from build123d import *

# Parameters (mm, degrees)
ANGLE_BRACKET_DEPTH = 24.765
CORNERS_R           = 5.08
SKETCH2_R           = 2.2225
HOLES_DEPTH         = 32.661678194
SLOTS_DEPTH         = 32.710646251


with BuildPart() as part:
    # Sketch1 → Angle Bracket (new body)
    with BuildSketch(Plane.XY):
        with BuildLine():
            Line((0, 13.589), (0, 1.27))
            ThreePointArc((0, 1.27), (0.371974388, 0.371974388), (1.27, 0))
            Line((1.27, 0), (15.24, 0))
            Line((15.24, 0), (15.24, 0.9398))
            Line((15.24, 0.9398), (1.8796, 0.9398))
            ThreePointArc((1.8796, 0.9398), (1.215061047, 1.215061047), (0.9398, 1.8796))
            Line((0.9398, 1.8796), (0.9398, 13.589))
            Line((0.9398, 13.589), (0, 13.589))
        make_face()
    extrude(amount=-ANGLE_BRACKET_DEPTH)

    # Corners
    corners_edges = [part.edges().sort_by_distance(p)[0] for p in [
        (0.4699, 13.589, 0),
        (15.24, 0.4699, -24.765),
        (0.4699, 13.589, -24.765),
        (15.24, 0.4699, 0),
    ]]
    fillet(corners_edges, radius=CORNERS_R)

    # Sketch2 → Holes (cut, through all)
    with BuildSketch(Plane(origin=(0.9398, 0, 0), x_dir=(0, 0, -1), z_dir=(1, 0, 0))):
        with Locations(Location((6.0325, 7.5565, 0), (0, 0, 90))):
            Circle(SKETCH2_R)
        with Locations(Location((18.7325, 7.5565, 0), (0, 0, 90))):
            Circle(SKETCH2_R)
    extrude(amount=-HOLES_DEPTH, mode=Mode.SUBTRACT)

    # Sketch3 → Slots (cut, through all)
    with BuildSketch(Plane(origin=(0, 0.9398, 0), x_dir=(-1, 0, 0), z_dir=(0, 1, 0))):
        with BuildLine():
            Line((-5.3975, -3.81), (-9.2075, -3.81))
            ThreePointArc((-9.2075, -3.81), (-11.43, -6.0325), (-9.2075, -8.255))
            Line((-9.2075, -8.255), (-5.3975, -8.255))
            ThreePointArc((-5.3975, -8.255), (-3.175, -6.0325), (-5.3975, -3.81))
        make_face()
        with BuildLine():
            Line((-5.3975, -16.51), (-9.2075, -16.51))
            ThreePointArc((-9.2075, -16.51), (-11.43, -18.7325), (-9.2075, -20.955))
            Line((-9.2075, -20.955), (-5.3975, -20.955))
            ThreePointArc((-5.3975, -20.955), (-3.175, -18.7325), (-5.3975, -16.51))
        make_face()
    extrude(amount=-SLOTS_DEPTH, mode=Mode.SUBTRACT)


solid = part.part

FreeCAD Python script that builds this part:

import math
import FreeCAD as App
import Part
import Sketcher
Q = App.Units.Quantity


def edges_at(feature, points):
    """Names of the edges that pass closest to the given points."""
    edges = feature.Shape.Edges
    near = lambda p: min(range(len(edges)), key=lambda i: edges[i].distToShape(Part.Vertex(*p))[0])
    return sorted({f"Edge{near(p) + 1}" for p in points})

doc = App.newDocument("Part")
body = doc.addObject("PartDesign::Body", "Body")

# Sketch on XY plane
sketch1 = body.newObject("Sketcher::SketchObject", "Sketch")
sketch1.AttachmentSupport = (doc.getObject("XY_Plane"), [""])
sketch1.MapMode = "FlatFace"
sketch1.addGeometry(Part.LineSegment(App.Vector(0, 13.6, 0), App.Vector(0, 1.3, 0)), False)
sketch1.addGeometry(Part.ArcOfCircle(Part.Circle(App.Vector(1.3, 1.3, 0), App.Vector(0, 0, 1), 1.3), math.radians(180), math.radians(270)), False)
sketch1.addGeometry(Part.LineSegment(App.Vector(1.3, 0, 0), App.Vector(15.2, 0, 0)), False)
sketch1.addGeometry(Part.LineSegment(App.Vector(15.2, 0, 0), App.Vector(15.2, 0.9, 0)), False)
sketch1.addGeometry(Part.LineSegment(App.Vector(15.2, 0.9, 0), App.Vector(1.9, 0.9, 0)), False)
sketch1.addGeometry(Part.ArcOfCircle(Part.Circle(App.Vector(1.9, 1.9, 0), App.Vector(0, 0, 1), 0.9), math.radians(180), math.radians(270)), False)
sketch1.addGeometry(Part.LineSegment(App.Vector(0.9, 1.9, 0), App.Vector(0.9, 13.6, 0)), False)
sketch1.addGeometry(Part.LineSegment(App.Vector(0.9, 13.6, 0), App.Vector(0, 13.6, 0)), False)
sketch1.addConstraint(Sketcher.Constraint("Tangent", 0, 2, 1, 1))
sketch1.addConstraint(Sketcher.Constraint("Tangent", 1, 2, 2, 1))
sketch1.addConstraint(Sketcher.Constraint("Coincident", 2, 2, 3, 1))
sketch1.addConstraint(Sketcher.Constraint("Coincident", 3, 2, 4, 1))
sketch1.addConstraint(Sketcher.Constraint("Tangent", 4, 2, 5, 2))
sketch1.addConstraint(Sketcher.Constraint("Tangent", 5, 1, 6, 1))
sketch1.addConstraint(Sketcher.Constraint("Coincident", 6, 2, 7, 1))
sketch1.addConstraint(Sketcher.Constraint("Coincident", 7, 2, 0, 1))
sketch1.addConstraint(Sketcher.Constraint("Vertical", 0))
sketch1.addConstraint(Sketcher.Constraint("Horizontal", 2))
sketch1.addConstraint(Sketcher.Constraint("Vertical", 3))
sketch1.addConstraint(Sketcher.Constraint("Horizontal", 4))
sketch1.addConstraint(Sketcher.Constraint("Vertical", 6))
sketch1.addConstraint(Sketcher.Constraint("Horizontal", 7))
sketch1.addConstraint(Sketcher.Constraint("PointOnObject", 0, 2, -2))
sketch1.addConstraint(Sketcher.Constraint("PointOnObject", 1, 2, -1))
sketch1.addConstraint(Sketcher.Constraint("Equal", 7, 3))
sketch1.addConstraint(Sketcher.Constraint("Radius", 1, Q("0.05 in")))
sketch1.addConstraint(Sketcher.Constraint("Radius", 5, Q("0.037 in")))
sketch1.addConstraint(Sketcher.Constraint("DistanceX", 2, 1, 2, 2, Q("0.55 in")))
sketch1.addConstraint(Sketcher.Constraint("DistanceX", 4, 2, 4, 1, Q("0.526 in")))
sketch1.addConstraint(Sketcher.Constraint("DistanceY", 0, 2, 0, 1, Q("0.485 in")))
pad1 = body.newObject("PartDesign::Pad", "Pad")
pad1.Profile = sketch1
pad1.Length = Q("0.975 in")
pad1.Reversed = True
doc.recompute()

fillet = body.newObject("PartDesign::Fillet", "Fillet")
fillet.Base = (pad1, edges_at(pad1, [
    (0.47, 13.589, 0),
    (15.24, 0.47, -24.765),
    (0.47, 13.589, -24.765),
    (15.24, 0.47, 0),
]))
fillet.Radius = Q("0.2 in")

# Sketch on YZ plane
sketch2 = body.newObject("Sketcher::SketchObject", "Sketch001")
sketch2.AttachmentSupport = (doc.getObject("YZ_Plane"), [""])
sketch2.MapMode = "FlatFace"
sketch2.AttachmentOffset = App.Placement(App.Vector(0, 0, 0.037 * 25.4), App.Rotation())
sketch2.addGeometry(Part.Circle(App.Vector(7.6, -6, 0), App.Vector(0, 0, 1), 2.2), False)
sketch2.addGeometry(Part.Circle(App.Vector(7.6, -18.7, 0), App.Vector(0, 0, 1), 2.2), False)
sketch2.addConstraint(Sketcher.Constraint("Equal", 0, 1))
sketch2.addConstraint(Sketcher.Constraint("Vertical", 0, 3, 1, 3))
sketch2.addConstraint(Sketcher.Constraint("Diameter", 0, Q("0.175 in")))
sketch2.addConstraint(Sketcher.Constraint("DistanceY", 1, 3, 0, 3, Q("0.5 in")))
sketch2.addConstraint(Sketcher.Constraint("DistanceX", -1, 1, 0, 3, Q("0.2975 in")))
sketch2.addConstraint(Sketcher.Constraint("DistanceY", 0, 3, -1, 1, Q("0.2375 in")))
pocket1 = body.newObject("PartDesign::Pocket", "Pocket")
pocket1.Profile = sketch2
pocket1.Type = "ThroughAll"

# Sketch on XZ plane
sketch3 = body.newObject("Sketcher::SketchObject", "Sketch002")
sketch3.AttachmentSupport = (doc.getObject("XZ_Plane"), [""])
sketch3.MapMode = "FlatFace"
sketch3.AttachmentOffset = App.Placement(App.Vector(0, 0, -0.037 * 25.4), App.Rotation())
sketch3.addGeometry(Part.LineSegment(App.Vector(5.4, -3.8, 0), App.Vector(9.2, -3.8, 0)), False)
sketch3.addGeometry(Part.ArcOfCircle(Part.Circle(App.Vector(9.2, -6, 0), App.Vector(0, 0, 1), 2.2), math.radians(-90), math.radians(90)), False)
sketch3.addGeometry(Part.LineSegment(App.Vector(9.2, -8.3, 0), App.Vector(5.4, -8.3, 0)), False)
sketch3.addGeometry(Part.ArcOfCircle(Part.Circle(App.Vector(5.4, -6, 0), App.Vector(0, 0, 1), 2.2), math.radians(90), math.radians(270)), False)
sketch3.addGeometry(Part.LineSegment(App.Vector(5.4, -16.5, 0), App.Vector(9.2, -16.5, 0)), False)
sketch3.addGeometry(Part.ArcOfCircle(Part.Circle(App.Vector(9.2, -18.7, 0), App.Vector(0, 0, 1), 2.2), math.radians(-90), math.radians(90)), False)
sketch3.addGeometry(Part.LineSegment(App.Vector(9.2, -21, 0), App.Vector(5.4, -21, 0)), False)
sketch3.addGeometry(Part.ArcOfCircle(Part.Circle(App.Vector(5.4, -18.7, 0), App.Vector(0, 0, 1), 2.2), math.radians(90), math.radians(270)), False)
sketch3.addConstraint(Sketcher.Constraint("Tangent", 0, 2, 1, 2))
sketch3.addConstraint(Sketcher.Constraint("Tangent", 1, 1, 2, 1))
sketch3.addConstraint(Sketcher.Constraint("Tangent", 2, 2, 3, 2))
sketch3.addConstraint(Sketcher.Constraint("Tangent", 3, 1, 0, 1))
sketch3.addConstraint(Sketcher.Constraint("Tangent", 4, 2, 5, 2))
sketch3.addConstraint(Sketcher.Constraint("Tangent", 5, 1, 6, 1))
sketch3.addConstraint(Sketcher.Constraint("Tangent", 6, 2, 7, 2))
sketch3.addConstraint(Sketcher.Constraint("Tangent", 7, 1, 4, 1))
sketch3.addConstraint(Sketcher.Constraint("Horizontal", 0))
sketch3.addConstraint(Sketcher.Constraint("Horizontal", 2))
sketch3.addConstraint(Sketcher.Constraint("Horizontal", 4))
sketch3.addConstraint(Sketcher.Constraint("Horizontal", 6))
sketch3.addConstraint(Sketcher.Constraint("Equal", 3, 5))
sketch3.addConstraint(Sketcher.Constraint("Vertical", 1, 3, 5, 3))
sketch3.addConstraint(Sketcher.Constraint("Vertical", 3, 3, 7, 3))
sketch3.addConstraint(Sketcher.Constraint("DistanceX", 0, 1, 0, 2, Q("0.15 in")))
sketch3.addConstraint(Sketcher.Constraint("Radius", 1, Q("0.0875 in")))
sketch3.addConstraint(Sketcher.Constraint("DistanceY", 5, 3, 1, 3, Q("0.5 in")))
sketch3.addConstraint(Sketcher.Constraint("DistanceY", 0, 2, -1, 1, Q("0.15 in")))
sketch3.addConstraint(Sketcher.Constraint("DistanceX", -1, 1, 1, 3, Q("0.3625 in")))
pocket2 = body.newObject("PartDesign::Pocket", "Pocket001")
pocket2.Profile = sketch3
pocket2.Type = "ThroughAll"
pocket2.Reversed = True

doc.recompute()
